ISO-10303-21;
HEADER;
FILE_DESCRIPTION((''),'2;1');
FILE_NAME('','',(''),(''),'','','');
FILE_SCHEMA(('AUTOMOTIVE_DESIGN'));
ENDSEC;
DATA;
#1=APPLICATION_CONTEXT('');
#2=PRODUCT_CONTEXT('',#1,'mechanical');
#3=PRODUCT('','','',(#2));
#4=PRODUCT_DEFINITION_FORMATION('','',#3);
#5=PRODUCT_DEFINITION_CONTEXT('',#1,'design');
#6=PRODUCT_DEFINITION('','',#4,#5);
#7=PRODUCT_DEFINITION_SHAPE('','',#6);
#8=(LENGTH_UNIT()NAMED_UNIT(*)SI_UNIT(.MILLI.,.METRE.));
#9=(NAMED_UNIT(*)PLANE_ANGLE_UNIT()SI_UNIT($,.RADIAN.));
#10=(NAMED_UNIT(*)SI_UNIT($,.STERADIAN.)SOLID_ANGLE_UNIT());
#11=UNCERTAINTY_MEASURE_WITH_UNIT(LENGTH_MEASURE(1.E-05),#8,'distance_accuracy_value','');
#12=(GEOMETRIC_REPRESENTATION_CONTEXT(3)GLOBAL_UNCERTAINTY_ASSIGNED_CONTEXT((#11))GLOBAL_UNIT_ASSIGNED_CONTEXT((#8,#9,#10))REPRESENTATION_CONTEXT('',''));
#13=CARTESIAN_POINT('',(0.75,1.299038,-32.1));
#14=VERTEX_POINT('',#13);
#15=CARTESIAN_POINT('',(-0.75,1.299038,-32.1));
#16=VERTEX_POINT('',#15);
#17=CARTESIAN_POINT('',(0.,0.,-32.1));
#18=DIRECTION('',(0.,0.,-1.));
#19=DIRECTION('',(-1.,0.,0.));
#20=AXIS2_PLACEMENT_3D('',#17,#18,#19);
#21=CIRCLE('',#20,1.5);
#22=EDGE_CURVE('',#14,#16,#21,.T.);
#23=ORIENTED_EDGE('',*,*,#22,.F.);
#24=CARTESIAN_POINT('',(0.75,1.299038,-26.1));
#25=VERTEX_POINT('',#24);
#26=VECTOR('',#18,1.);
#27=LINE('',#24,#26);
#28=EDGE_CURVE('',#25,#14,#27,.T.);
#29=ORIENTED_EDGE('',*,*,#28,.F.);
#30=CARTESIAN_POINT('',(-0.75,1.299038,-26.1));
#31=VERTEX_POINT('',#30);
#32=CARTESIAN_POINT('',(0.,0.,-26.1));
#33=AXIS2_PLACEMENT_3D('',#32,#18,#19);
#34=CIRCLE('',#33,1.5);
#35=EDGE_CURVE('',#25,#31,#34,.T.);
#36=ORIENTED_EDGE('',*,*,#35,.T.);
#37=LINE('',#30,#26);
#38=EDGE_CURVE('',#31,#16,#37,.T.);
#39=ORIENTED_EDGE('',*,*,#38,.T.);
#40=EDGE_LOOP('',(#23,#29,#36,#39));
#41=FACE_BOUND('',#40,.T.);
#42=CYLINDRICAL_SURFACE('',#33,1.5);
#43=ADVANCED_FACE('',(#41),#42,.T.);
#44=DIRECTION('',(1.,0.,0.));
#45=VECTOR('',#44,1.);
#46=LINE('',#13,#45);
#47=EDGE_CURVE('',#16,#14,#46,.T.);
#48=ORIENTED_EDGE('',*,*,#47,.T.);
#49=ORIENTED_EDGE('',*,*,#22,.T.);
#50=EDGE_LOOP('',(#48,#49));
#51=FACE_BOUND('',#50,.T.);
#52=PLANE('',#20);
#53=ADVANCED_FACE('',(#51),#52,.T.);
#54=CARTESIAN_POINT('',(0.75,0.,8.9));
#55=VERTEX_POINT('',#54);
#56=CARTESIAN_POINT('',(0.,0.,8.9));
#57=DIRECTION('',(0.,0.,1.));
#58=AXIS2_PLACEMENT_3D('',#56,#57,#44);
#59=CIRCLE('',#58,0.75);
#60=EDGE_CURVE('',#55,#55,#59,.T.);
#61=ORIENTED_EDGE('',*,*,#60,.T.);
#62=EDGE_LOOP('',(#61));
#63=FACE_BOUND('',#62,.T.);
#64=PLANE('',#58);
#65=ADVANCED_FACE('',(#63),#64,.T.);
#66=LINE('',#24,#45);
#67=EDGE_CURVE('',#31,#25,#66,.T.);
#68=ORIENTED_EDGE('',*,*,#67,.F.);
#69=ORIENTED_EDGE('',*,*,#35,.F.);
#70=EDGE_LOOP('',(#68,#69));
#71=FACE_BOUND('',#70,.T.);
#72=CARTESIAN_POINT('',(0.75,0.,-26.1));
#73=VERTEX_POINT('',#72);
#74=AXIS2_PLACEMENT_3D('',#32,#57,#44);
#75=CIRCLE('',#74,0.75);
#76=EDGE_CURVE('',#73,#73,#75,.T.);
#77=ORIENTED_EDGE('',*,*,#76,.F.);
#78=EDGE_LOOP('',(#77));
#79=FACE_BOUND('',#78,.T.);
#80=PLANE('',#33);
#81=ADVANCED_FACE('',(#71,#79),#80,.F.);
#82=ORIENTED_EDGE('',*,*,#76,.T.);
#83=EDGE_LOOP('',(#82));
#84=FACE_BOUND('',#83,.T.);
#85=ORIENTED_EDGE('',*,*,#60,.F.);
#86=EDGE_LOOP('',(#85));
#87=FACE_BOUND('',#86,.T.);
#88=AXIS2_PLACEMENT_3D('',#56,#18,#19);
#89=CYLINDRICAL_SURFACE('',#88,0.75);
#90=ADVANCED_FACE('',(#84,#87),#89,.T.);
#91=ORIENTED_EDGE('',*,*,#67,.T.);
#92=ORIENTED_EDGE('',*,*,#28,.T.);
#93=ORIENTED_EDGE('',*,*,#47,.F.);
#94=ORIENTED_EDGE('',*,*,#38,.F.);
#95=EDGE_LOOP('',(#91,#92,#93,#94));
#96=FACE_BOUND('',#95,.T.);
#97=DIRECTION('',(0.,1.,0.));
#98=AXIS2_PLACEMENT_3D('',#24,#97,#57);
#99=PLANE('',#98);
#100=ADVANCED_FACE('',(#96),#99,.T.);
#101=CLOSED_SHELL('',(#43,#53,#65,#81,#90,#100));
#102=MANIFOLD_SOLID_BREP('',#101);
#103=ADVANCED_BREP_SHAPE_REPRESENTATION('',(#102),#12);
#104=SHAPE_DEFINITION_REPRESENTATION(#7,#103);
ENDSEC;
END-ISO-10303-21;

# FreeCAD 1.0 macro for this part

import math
import FreeCAD as App
import Part
import Sketcher
from FreeCAD import Vector
Q = App.Units.Quantity

doc = App.newDocument("Part")
params = doc.addObject("Spreadsheet::Sheet", "Params")
for row, (alias, value) in enumerate([
    ("sketch1_radius", "1.5 mm"),
    ("sketch1_width", "1.5 mm"),
    ("pad1_length", "4 mm"),
    ("pad1_length2", "2 mm"),
    ("sketch2_diameter", "1.5 mm"),
    ("pad2_length", "35 mm"),
], start=1):
    params.set(f"A{row}", alias)
    params.set(f"B{row}", "=" + value)
    params.setAlias(f"B{row}", alias)

body = doc.addObject("PartDesign::Body", "Body")

# Sketch on XY plane
sketch1 = doc.addObject("Sketcher::SketchObject", "Sketch")
body.addObject(sketch1)
sketch1.AttachmentSupport = (doc.XY_Plane, [""])
sketch1.MapMode = "FlatFace"
sketch1.AttachmentOffset = App.Placement(Vector(0, 0, -28.1), App.Rotation())
sketch1.addGeometry(Part.LineSegment(Vector(-0.8, 1.3, 0), Vector(0.8, 1.3, 0)), False)
sketch1.addGeometry(Part.ArcOfCircle(Part.Circle(Vector(0, 0, 0), Vector(0, 0, 1), 1.5), math.radians(120), math.radians(420)), False)
sketch1.addConstraint(Sketcher.Constraint("Coincident", 0, 1, 1, 1))
sketch1.addConstraint(Sketcher.Constraint("Coincident", 1, 2, 0, 2))
sketch1.addConstraint(Sketcher.Constraint("Horizontal", 0))
sketch1.addConstraint(Sketcher.Constraint("Coincident", 1, 3, -1, 1))
sketch1.addConstraint(Sketcher.Constraint("Radius", 1, Q("1.5 mm")))
sketch1.addConstraint(Sketcher.Constraint("DistanceX", 0, 1, 0, 2, Q("1.5 mm")))
sketch1.setExpression("Constraints[4]", "Params.sketch1_radius")
sketch1.setExpression("Constraints[5]", "Params.sketch1_width")
pad1 = doc.addObject("PartDesign::Pad", "Pad")
body.addObject(pad1)
pad1.Profile = sketch1
pad1.Type = "TwoLengths"
pad1.setExpression("Length", "Params.pad1_length")
pad1.setExpression("Length2", "Params.pad1_length2")
pad1.Reversed = True

# Sketch on XY plane
sketch2 = doc.addObject("Sketcher::SketchObject", "Sketch001")
body.addObject(sketch2)
sketch2.AttachmentSupport = (doc.XY_Plane, [""])
sketch2.MapMode = "FlatFace"
sketch2.AttachmentOffset = App.Placement(Vector(0, 0, -26.1), App.Rotation())
sketch2.addGeometry(Part.Circle(Vector(0, 0, 0), Vector(0, 0, 1), 0.8), False)
sketch2.addConstraint(Sketcher.Constraint("Coincident", 0, 3, -1, 1))
sketch2.addConstraint(Sketcher.Constraint("Diameter", 0, Q("1.5 mm")))
sketch2.setExpression("Constraints[1]", "Params.sketch2_diameter")
pad2 = doc.addObject("PartDesign::Pad", "Pad001")
body.addObject(pad2)
pad2.Profile = sketch2
pad2.setExpression("Length", "Params.pad2_length")

doc.recompute()
